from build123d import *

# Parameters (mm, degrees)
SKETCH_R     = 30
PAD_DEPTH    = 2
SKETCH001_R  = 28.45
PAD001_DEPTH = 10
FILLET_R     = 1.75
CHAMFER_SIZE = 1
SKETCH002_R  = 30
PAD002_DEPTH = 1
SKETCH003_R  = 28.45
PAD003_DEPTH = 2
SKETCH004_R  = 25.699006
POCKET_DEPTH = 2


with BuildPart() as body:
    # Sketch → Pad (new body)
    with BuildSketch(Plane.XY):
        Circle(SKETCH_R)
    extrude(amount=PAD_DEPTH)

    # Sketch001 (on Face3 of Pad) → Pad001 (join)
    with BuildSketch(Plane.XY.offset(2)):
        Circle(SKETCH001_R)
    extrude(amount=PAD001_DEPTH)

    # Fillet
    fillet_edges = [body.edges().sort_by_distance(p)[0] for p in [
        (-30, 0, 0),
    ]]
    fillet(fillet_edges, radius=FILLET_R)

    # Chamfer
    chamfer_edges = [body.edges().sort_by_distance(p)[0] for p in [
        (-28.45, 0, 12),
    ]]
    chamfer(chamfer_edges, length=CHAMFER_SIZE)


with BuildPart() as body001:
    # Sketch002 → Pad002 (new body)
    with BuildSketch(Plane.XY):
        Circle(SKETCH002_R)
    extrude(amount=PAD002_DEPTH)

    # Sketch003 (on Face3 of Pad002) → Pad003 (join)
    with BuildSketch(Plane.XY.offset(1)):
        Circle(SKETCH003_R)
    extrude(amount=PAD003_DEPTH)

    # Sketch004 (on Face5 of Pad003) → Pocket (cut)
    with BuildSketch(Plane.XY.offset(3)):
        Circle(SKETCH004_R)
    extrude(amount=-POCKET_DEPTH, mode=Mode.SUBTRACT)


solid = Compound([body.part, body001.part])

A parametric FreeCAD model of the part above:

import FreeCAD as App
import Part
import Sketcher


def edges_at(feature, points):
    """Names of the edges that pass closest to the given points."""
    edges = feature.Shape.Edges
    near = lambda p: min(range(len(edges)), key=lambda i: edges[i].distToShape(Part.Vertex(*p))[0])
    return sorted({f"Edge{near(p) + 1}" for p in points})

doc = App.newDocument("Part")
body = doc.addObject("PartDesign::Body", "Body")

# Sketch on XY plane
sketch1 = doc.addObject("Sketcher::SketchObject", "Sketch")
body.addObject(sketch1)
sketch1.AttachmentSupport = (doc.XY_Plane, [""])
sketch1.MapMode = "FlatFace"
sketch1.addGeometry(Part.Circle(App.Vector(0, 0, 0), App.Vector(0, 0, 1), 30), False)
sketch1.addConstraint([
    Sketcher.Constraint("Coincident", 0, 3, -1, 1),
    Sketcher.Constraint("Diameter", 0, 60.0),
])
pad1 = doc.addObject("PartDesign::Pad", "Pad")
body.addObject(pad1)
pad1.Profile = sketch1
pad1.Length = 2

# Sketch on XY plane
sketch2 = doc.addObject("Sketcher::SketchObject", "Sketch001")
body.addObject(sketch2)
sketch2.AttachmentSupport = (doc.XY_Plane, [""])
sketch2.MapMode = "FlatFace"
sketch2.AttachmentOffset = App.Placement(App.Vector(0, 0, 2), App.Rotation())
sketch2.addGeometry(Part.Circle(App.Vector(0, 0, 0), App.Vector(0, 0, 1), 28), False)
sketch2.addConstraint([
    Sketcher.Constraint("Coincident", 0, 3, -1, 1),
    Sketcher.Constraint("Diameter", 0, 56.9),
])
pad2 = doc.addObject("PartDesign::Pad", "Pad001")
body.addObject(pad2)
pad2.Profile = sketch2
pad2.Length = 10
doc.recompute()

fillet = doc.addObject("PartDesign::Fillet", "Fillet")
body.addObject(fillet)
fillet.Base = (pad2, edges_at(pad2, [(-30, 0, 0)]))
fillet.Radius = 1.75
doc.recompute()

chamfer = doc.addObject("PartDesign::Chamfer", "Chamfer")
body.addObject(chamfer)
chamfer.Base = (fillet, edges_at(fillet, [(-28.45, 0, 12)]))
chamfer.Size = 1
body2 = doc.addObject("PartDesign::Body", "Body001")

# Sketch on XY plane
sketch3 = doc.addObject("Sketcher::SketchObject", "Sketch002")
body2.addObject(sketch3)
sketch3.AttachmentSupport = (doc.getObject("XY_Plane001"), [""])
sketch3.MapMode = "FlatFace"
sketch3.addGeometry(Part.Circle(App.Vector(0, 0, 0), App.Vector(0, 0, 1), 30), False)
sketch3.addConstraint([
    Sketcher.Constraint("Coincident", 0, 3, -1, 1),
    Sketcher.Constraint("Diameter", 0, 60.0),
])
pad3 = doc.addObject("PartDesign::Pad", "Pad002")
body2.addObject(pad3)
pad3.Profile = sketch3
pad3.Length = 1

# Sketch on XY plane
sketch4 = doc.addObject("Sketcher::SketchObject", "Sketch003")
body2.addObject(sketch4)
sketch4.AttachmentSupport = (doc.getObject("XY_Plane001"), [""])
sketch4.MapMode = "FlatFace"
sketch4.AttachmentOffset = App.Placement(App.Vector(0, 0, 1), App.Rotation())
sketch4.addGeometry(Part.Circle(App.Vector(0, 0, 0), App.Vector(0, 0, 1), 28), False)
sketch4.addConstraint([
    Sketcher.Constraint("Coincident", 0, 3, -1, 1),
    Sketcher.Constraint("Diameter", 0, 56.9),
])
pad4 = doc.addObject("PartDesign::Pad", "Pad003")
body2.addObject(pad4)
pad4.Profile = sketch4
pad4.Length = 2

# Sketch on XY plane
sketch5 = doc.addObject("Sketcher::SketchObject", "Sketch004")
body2.addObject(sketch5)
sketch5.AttachmentSupport = (doc.getObject("XY_Plane001"), [""])
sketch5.MapMode = "FlatFace"
sketch5.AttachmentOffset = App.Placement(App.Vector(0, 0, 3), App.Rotation())
sketch5.addGeometry(Part.Circle(App.Vector(0, 0, 0), App.Vector(0, 0, 1), 26), False)
sketch5.addConstraint([
    Sketcher.Constraint("Coincident", 0, 3, -1, 1),
    Sketcher.Constraint("Diameter", 0, 51.398012),
])
pocket1 = doc.addObject("PartDesign::Pocket", "Pocket")
body2.addObject(pocket1)
pocket1.Profile = sketch5
pocket1.Length = 2

doc.recompute()
